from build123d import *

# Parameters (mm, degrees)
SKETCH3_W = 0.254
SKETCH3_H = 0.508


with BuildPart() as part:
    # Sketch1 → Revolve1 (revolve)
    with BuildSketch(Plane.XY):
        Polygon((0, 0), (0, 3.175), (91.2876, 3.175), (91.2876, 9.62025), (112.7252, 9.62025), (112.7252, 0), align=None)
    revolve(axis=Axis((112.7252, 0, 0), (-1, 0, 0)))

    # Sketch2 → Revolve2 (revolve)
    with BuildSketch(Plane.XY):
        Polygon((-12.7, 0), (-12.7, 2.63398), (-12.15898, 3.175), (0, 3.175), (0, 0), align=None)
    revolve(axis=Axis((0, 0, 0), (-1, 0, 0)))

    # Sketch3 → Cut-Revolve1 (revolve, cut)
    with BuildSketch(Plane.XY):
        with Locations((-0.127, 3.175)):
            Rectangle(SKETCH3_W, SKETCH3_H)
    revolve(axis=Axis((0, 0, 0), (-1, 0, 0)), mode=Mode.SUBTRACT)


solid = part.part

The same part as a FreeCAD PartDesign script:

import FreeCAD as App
import Part
import Sketcher
Q = App.Units.Quantity


def add_polygon(sketch, points):
    """Adds a closed chain of lines whose ends are joined by coincident constraints."""
    first, n = sketch.GeometryCount, len(points)
    for a, b in zip(points, points[1:] + points[:1]):
        sketch.addGeometry(Part.LineSegment(App.Vector(*a, 0), App.Vector(*b, 0)), False)
    for i in range(n):
        sketch.addConstraint(Sketcher.Constraint("Coincident", first + i, 2, first + (i + 1) % n, 1))

doc = App.newDocument("Part")
params = doc.addObject("Spreadsheet::Sheet", "Params")
for row, (alias, value) in enumerate([
    ("sketch1_width", "4.438 in"),
    ("sketch1_width2", "0.844 in"),
    ("sketch1_height", "0.125 in"),
    ("revolution_angle", "360 deg"),
    ("sketch2_width", "0.5 in"),
    ("sketch2_height", "0.125 in"),
    ("revolution2_angle", "360 deg"),
    ("sketch3_width", "0.01 in"),
    ("sketch3_height", "0.02 in"),
    ("groove_angle", "360 deg"),
], start=1):
    params.set(f"A{row}", alias)
    params.set(f"B{row}", "=" + value)
    params.setAlias(f"B{row}", alias)

body = doc.addObject("PartDesign::Body", "Body")

sketch1 = body.newObject("Sketcher::SketchObject", "Sketch")
sketch1.AttachmentSupport = (doc.getObject("XY_Plane"), [""])
sketch1.MapMode = "FlatFace"
add_polygon(sketch1, [(0, 3.175), (0, 0), (112.7252, 0), (112.7252, 9.62025), (91.2876, 9.62025), (91.2876, 3.175)])
sketch1.addConstraint([
    Sketcher.Constraint("Vertical", 0),
    Sketcher.Constraint("Horizontal", 1),
    Sketcher.Constraint("Vertical", 2),
    Sketcher.Constraint("Horizontal", 3),
    Sketcher.Constraint("Vertical", 4),
    Sketcher.Constraint("Horizontal", 5),
    Sketcher.Constraint("Coincident", 0, 2, -1, 1),
    Sketcher.Constraint("DistanceX", 1, 1, 1, 2, Q("4.438 in")),
    Sketcher.Constraint("DistanceX", 3, 2, 3, 1, Q("0.844 in")),
    Sketcher.Constraint("DistanceY", 0, 2, 0, 1, Q("0.125 in")),
    Sketcher.Constraint("DistanceY", 2, 1, 2, 2, Q("9.62025 mm")),
])
sketch1.setExpression("Constraints[13]", "Params.sketch1_width")
sketch1.setExpression("Constraints[14]", "Params.sketch1_width2")
sketch1.setExpression("Constraints[15]", "Params.sketch1_height")
revolution = body.newObject("PartDesign::Revolution", "Revolution")
revolution.Profile = sketch1
revolution.ReferenceAxis = (sketch1, ["H_Axis"])
revolution.setExpression("Angle", "Params.revolution_angle")

sketch2 = body.newObject("Sketcher::SketchObject", "Sketch001")
sketch2.AttachmentSupport = (doc.getObject("XY_Plane"), [""])
sketch2.MapMode = "FlatFace"
add_polygon(sketch2, [(-12.7, 2.63398), (-12.7, 0), (0, 0), (0, 3.175), (-12.15898, 3.175)])
sketch2.addConstraint([
    Sketcher.Constraint("Vertical", 0),
    Sketcher.Constraint("Horizontal", 1),
    Sketcher.Constraint("Vertical", 2),
    Sketcher.Constraint("Horizontal", 3),
    Sketcher.Constraint("Coincident", 1, 2, -1, 1),
    Sketcher.Constraint("DistanceX", 1, 1, 1, 2, Q("0.5 in")),
    Sketcher.Constraint("Angle", 4, Q("-135 deg")),
    Sketcher.Constraint("DistanceY", 2, 1, 2, 2, Q("0.125 in")),
    Sketcher.Constraint("DistanceX", 3, 2, 3, 1, Q("0.4787 in")),
])
sketch2.setExpression("Constraints[10]", "Params.sketch2_width")
sketch2.setExpression("Constraints[12]", "Params.sketch2_height")
revolution2 = body.newObject("PartDesign::Revolution", "Revolution001")
revolution2.Profile = sketch2
revolution2.ReferenceAxis = (sketch2, ["H_Axis"])
revolution2.setExpression("Angle", "Params.revolution2_angle")

sketch3 = body.newObject("Sketcher::SketchObject", "Sketch002")
sketch3.AttachmentSupport = (doc.getObject("XY_Plane"), [""])
sketch3.MapMode = "FlatFace"
add_polygon(sketch3, [(-0.254, 3.429), (-0.254, 2.921), (0, 2.921), (0, 3.429)])
sketch3.addConstraint([
    Sketcher.Constraint("Vertical", 0),
    Sketcher.Constraint("Horizontal", 1),
    Sketcher.Constraint("Vertical", 2),
    Sketcher.Constraint("Horizontal", 3),
    Sketcher.Constraint("PointOnObject", 1, 2, -2),
    Sketcher.Constraint("DistanceX", 1, 1, 1, 2, Q("0.01 in")),
    Sketcher.Constraint("DistanceY", 0, 2, 0, 1, Q("0.02 in")),
    Sketcher.Constraint("DistanceY", -1, 1, 0, 2, Q("0.115 in")),
])
sketch3.setExpression("Constraints[9]", "Params.sketch3_width")
sketch3.setExpression("Constraints[10]", "Params.sketch3_height")
groove = body.newObject("PartDesign::Groove", "Groove")
groove.Profile = sketch3
groove.ReferenceAxis = (sketch3, ["H_Axis"])
groove.setExpression("Angle", "Params.groove_angle")

doc.recompute()
